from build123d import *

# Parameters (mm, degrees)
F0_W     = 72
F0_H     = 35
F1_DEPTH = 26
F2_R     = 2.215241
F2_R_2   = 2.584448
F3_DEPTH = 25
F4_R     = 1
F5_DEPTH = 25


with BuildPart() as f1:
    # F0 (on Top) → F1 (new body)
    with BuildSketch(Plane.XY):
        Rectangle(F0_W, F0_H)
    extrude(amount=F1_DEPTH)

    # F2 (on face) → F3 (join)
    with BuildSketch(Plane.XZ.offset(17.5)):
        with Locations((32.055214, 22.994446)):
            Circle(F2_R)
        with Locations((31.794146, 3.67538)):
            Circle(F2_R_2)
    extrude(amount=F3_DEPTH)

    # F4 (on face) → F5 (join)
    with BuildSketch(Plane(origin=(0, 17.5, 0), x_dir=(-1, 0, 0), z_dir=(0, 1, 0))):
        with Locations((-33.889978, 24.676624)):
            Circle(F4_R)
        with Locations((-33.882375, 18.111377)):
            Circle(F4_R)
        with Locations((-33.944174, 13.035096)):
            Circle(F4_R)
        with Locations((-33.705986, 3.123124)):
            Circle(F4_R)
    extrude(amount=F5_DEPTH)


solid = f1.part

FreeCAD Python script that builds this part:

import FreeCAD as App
import Part
import Sketcher

doc = App.newDocument("Part")
body = doc.addObject("PartDesign::Body", "Body")

# Sketch on XY plane
sketch1 = doc.addObject("Sketcher::SketchObject", "Sketch")
body.addObject(sketch1)
sketch1.AttachmentSupport = (doc.XY_Plane, [""])
sketch1.MapMode = "FlatFace"
sketch1.addGeometry([
    Part.LineSegment(App.Vector(-36, 17.5, 0), App.Vector(-36, -17.5, 0)),
    Part.LineSegment(App.Vector(-36, -17.5, 0), App.Vector(36, -17.5, 0)),
    Part.LineSegment(App.Vector(36, -17.5, 0), App.Vector(36, 17.5, 0)),
    Part.LineSegment(App.Vector(36, 17.5, 0), App.Vector(-36, 17.5, 0)),
], False)
sketch1.addConstraint([
    Sketcher.Constraint("Coincident", 0, 2, 1, 1),
    Sketcher.Constraint("Coincident", 1, 2, 2, 1),
    Sketcher.Constraint("Coincident", 2, 2, 3, 1),
    Sketcher.Constraint("Coincident", 3, 2, 0, 1),
    Sketcher.Constraint("Vertical", 0),
    Sketcher.Constraint("Horizontal", 1),
    Sketcher.Constraint("Vertical", 2),
    Sketcher.Constraint("Horizontal", 3),
    Sketcher.Constraint("Symmetric", 0, 2, 2, 2, -1, 1),
    Sketcher.Constraint("DistanceX", 1, 1, 1, 2, 72.0),
    Sketcher.Constraint("DistanceY", 0, 2, 0, 1, 35.0),
])
pad1 = doc.addObject("PartDesign::Pad", "Pad")
body.addObject(pad1)
pad1.Profile = sketch1
pad1.Length = 26

# Sketch on XZ plane
sketch2 = doc.addObject("Sketcher::SketchObject", "Sketch001")
body.addObject(sketch2)
sketch2.AttachmentSupport = (doc.XZ_Plane, [""])
sketch2.MapMode = "FlatFace"
sketch2.AttachmentOffset = App.Placement(App.Vector(0, 0, 17.5), App.Rotation())
sketch2.addGeometry([
    Part.Circle(App.Vector(32.055214, 22.994446, 0), App.Vector(0, 0, 1), 2.215241),
    Part.Circle(App.Vector(31.794146, 3.67538, 0), App.Vector(0, 0, 1), 2.584448),
], False)
sketch2.addConstraint([
    Sketcher.Constraint("Diameter", 0, 4.430482),
    Sketcher.Constraint("Diameter", 1, 5.168896),
    Sketcher.Constraint("DistanceY", -1, 1, 1, 3, 3.67538),
    Sketcher.Constraint("DistanceX", -1, 1, 0, 3, 32.055214),
    Sketcher.Constraint("DistanceY", -1, 1, 0, 3, 22.994446),
    Sketcher.Constraint("DistanceX", -1, 1, 1, 3, 31.794146),
])
pad2 = doc.addObject("PartDesign::Pad", "Pad001")
body.addObject(pad2)
pad2.Profile = sketch2
pad2.Length = 25

# Sketch on XZ plane
sketch3 = doc.addObject("Sketcher::SketchObject", "Sketch002")
body.addObject(sketch3)
sketch3.AttachmentSupport = (doc.XZ_Plane, [""])
sketch3.MapMode = "FlatFace"
sketch3.AttachmentOffset = App.Placement(App.Vector(0, 0, -17.5), App.Rotation())
sketch3.addGeometry([
    Part.Circle(App.Vector(33.889978, 24.676624, 0), App.Vector(0, 0, 1), 1),
    Part.Circle(App.Vector(33.882375, 18.111377, 0), App.Vector(0, 0, 1), 1),
    Part.Circle(App.Vector(33.944174, 13.035096, 0), App.Vector(0, 0, 1), 1),
    Part.Circle(App.Vector(33.705986, 3.123124, 0), App.Vector(0, 0, 1), 1),
], False)
sketch3.addConstraint([
    Sketcher.Constraint("Equal", 0, 1),
    Sketcher.Constraint("Equal", 1, 2),
    Sketcher.Constraint("Equal", 2, 3),
    Sketcher.Constraint("Diameter", 0, 2.0),
    Sketcher.Constraint("DistanceX", 1, 3, 2, 3, 0.061799),
    Sketcher.Constraint("DistanceY", 3, 3, 0, 3, 21.5535),
    Sketcher.Constraint("DistanceY", 2, 3, 1, 3, 5.076281),
    Sketcher.Constraint("DistanceY", 2, 3, 0, 3, 11.641528),
    Sketcher.Constraint("DistanceX", 3, 3, 1, 3, 0.176389),
    Sketcher.Constraint("DistanceX", 3, 3, 0, 3, 0.183992),
    Sketcher.Constraint("DistanceX", -1, 1, 0, 3, 33.889978),
    Sketcher.Constraint("DistanceY", -1, 1, 0, 3, 24.676624),
])
pad3 = doc.addObject("PartDesign::Pad", "Pad002")
body.addObject(pad3)
pad3.Profile = sketch3
pad3.Length = 25
pad3.Reversed = True

doc.recompute()
